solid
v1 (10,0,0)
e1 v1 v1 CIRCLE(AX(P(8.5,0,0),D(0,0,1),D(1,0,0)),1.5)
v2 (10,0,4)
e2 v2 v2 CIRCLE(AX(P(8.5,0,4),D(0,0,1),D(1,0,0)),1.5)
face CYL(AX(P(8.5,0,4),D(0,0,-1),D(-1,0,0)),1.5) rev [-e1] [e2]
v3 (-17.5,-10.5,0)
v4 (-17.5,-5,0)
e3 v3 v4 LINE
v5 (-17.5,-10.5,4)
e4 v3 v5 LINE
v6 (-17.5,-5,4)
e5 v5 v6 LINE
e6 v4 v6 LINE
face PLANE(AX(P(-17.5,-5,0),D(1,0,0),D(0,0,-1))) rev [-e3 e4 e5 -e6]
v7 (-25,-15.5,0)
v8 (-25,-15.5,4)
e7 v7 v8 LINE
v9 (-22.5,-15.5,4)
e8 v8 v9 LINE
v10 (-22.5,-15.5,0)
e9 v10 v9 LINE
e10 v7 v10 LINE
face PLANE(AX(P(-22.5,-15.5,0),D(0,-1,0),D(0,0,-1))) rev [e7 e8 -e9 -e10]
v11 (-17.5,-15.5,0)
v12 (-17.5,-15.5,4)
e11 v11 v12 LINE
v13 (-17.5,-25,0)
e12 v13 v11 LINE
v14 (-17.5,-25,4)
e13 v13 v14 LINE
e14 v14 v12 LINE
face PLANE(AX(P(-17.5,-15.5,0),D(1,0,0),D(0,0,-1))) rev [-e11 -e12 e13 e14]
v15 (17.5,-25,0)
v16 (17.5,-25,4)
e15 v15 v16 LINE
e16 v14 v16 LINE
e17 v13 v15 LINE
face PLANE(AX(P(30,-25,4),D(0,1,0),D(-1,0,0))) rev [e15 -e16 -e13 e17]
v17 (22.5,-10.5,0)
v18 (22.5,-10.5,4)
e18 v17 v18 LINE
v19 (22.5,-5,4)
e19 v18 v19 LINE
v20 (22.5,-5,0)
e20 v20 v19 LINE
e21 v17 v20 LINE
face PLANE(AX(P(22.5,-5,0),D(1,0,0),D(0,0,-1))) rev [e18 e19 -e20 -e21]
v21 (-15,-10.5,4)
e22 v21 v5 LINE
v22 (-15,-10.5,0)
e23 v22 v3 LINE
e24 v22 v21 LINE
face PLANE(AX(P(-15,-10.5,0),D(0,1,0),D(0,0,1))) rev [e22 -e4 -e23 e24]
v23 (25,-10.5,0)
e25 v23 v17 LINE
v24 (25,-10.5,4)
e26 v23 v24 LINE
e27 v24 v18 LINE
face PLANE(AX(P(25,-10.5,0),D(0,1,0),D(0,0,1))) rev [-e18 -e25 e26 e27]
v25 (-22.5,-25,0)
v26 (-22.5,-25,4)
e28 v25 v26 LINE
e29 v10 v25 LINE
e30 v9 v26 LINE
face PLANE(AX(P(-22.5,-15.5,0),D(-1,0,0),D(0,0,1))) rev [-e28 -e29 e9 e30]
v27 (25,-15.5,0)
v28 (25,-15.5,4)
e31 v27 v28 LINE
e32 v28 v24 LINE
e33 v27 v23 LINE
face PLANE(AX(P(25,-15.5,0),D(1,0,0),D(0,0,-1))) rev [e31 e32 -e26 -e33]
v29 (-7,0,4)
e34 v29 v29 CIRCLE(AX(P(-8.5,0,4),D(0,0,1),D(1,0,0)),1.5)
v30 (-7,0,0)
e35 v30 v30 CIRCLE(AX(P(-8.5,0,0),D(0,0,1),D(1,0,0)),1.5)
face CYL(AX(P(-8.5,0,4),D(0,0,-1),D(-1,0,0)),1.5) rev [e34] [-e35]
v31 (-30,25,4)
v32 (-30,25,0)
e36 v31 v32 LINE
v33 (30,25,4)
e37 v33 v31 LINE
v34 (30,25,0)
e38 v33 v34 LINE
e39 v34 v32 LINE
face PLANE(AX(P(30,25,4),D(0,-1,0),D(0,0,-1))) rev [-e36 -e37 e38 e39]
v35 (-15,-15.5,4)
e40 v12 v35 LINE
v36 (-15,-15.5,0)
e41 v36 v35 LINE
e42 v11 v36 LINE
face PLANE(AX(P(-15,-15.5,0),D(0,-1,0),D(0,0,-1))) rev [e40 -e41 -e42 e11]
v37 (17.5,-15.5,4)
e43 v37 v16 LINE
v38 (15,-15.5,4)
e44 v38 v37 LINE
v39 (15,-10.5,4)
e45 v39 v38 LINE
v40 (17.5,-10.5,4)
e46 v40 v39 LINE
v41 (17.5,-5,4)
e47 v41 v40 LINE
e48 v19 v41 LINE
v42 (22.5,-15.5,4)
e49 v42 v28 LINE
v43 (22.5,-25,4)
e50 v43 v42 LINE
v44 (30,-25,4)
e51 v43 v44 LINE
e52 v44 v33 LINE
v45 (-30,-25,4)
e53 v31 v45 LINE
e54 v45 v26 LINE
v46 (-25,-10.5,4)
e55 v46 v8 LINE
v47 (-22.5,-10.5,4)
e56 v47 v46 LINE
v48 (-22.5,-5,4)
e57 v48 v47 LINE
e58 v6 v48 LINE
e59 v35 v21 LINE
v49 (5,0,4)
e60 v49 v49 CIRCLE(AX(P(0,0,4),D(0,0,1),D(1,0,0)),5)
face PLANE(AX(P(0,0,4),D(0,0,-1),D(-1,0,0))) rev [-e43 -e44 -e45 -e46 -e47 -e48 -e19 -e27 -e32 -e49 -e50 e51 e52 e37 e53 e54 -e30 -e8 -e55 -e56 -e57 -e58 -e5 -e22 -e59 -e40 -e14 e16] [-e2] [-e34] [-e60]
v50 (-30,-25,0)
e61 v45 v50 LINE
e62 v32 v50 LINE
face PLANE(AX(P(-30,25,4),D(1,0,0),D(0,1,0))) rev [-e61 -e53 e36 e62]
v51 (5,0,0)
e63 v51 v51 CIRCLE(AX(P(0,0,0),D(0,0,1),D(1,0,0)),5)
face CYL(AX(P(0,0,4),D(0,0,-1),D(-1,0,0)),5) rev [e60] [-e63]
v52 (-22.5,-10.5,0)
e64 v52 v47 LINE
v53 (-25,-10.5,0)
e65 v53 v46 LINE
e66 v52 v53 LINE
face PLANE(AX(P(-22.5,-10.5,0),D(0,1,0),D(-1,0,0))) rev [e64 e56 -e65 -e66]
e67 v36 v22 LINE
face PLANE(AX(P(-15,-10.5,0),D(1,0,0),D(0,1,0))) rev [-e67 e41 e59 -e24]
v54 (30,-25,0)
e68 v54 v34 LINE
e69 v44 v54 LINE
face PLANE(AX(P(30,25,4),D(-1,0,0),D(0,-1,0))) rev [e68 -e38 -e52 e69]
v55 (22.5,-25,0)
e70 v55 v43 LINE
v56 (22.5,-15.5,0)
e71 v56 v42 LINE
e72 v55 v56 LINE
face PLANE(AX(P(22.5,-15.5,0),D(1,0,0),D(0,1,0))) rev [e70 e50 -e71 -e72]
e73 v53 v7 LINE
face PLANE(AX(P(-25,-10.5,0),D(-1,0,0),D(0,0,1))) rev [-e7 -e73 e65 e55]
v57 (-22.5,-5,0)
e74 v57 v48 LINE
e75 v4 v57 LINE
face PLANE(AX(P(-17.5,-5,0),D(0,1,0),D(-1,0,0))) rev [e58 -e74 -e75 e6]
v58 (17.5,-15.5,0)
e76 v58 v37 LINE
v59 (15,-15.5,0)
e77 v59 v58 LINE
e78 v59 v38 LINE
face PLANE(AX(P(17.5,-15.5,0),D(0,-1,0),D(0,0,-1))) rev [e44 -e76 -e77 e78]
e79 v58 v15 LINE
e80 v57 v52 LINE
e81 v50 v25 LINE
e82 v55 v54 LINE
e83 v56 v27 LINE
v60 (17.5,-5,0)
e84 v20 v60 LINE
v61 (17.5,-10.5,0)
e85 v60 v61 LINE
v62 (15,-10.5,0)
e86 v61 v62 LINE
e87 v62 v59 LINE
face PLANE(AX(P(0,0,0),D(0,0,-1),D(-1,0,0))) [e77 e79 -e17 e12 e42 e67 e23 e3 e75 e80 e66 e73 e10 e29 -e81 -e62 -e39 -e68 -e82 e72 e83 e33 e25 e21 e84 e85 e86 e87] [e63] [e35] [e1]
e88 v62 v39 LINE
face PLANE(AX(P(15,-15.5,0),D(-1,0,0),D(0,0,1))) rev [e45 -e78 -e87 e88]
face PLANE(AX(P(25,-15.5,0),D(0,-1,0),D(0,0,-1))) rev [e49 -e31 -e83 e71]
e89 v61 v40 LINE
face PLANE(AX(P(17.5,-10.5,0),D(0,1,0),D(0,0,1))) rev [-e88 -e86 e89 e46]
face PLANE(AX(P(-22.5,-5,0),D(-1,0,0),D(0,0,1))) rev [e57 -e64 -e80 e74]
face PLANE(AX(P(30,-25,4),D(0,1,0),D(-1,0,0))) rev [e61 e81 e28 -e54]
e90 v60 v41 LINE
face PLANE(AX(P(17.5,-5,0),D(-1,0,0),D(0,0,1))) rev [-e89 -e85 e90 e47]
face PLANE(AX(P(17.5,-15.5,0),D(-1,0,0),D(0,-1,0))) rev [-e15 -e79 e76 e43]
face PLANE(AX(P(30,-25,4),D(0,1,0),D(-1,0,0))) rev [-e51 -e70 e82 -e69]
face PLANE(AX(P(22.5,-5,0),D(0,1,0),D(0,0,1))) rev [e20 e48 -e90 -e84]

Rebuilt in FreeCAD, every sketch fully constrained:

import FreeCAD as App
import Part
import Sketcher
from FreeCAD import Vector
Q = App.Units.Quantity


def add_polygon(sketch, points):
    """Adds a closed chain of lines whose ends are joined by coincident constraints."""
    first, n = sketch.GeometryCount, len(points)
    for a, b in zip(points, points[1:] + points[:1]):
        sketch.addGeometry(Part.LineSegment(App.Vector(*a, 0), App.Vector(*b, 0)), False)
    for i in range(n):
        sketch.addConstraint(Sketcher.Constraint("Coincident", first + i, 2, first + (i + 1) % n, 1))

doc = App.newDocument("Part")
params = doc.addObject("Spreadsheet::Sheet", "Params")
for row, (alias, value) in enumerate([
    ("sketch1_diameter", "3 mm"),
    ("sketch1_diameter2", "10 mm"),
    ("sketch1_width", "60 mm"),
    ("sketch1_height", "50 mm"),
    ("pad1_length", "4 mm"),
    ("sketch2_width", "5 mm"),
    ("sketch2_width2", "2.5 mm"),
    ("sketch2_height", "5.5 mm"),
    ("sketch2_height2", "9.5 mm"),
], start=1):
    params.set(f"A{row}", alias)
    params.set(f"B{row}", "=" + value)
    params.setAlias(f"B{row}", alias)

body = doc.addObject("PartDesign::Body", "Body")

# Sketch on XY plane
sketch1 = body.newObject("Sketcher::SketchObject", "Sketch")
sketch1.AttachmentSupport = (doc.getObject("XY_Plane"), [""])
sketch1.MapMode = "FlatFace"
add_polygon(sketch1, [(-30, 25), (-30, -25), (30, -25), (30, 25)])  # lines 0-3
sketch1.addGeometry(Part.Circle(Vector(-8.5, 0, 0), Vector(0, 0, 1), 1.5), False)  # 4
sketch1.addGeometry(Part.Circle(Vector(0, 0, 0), Vector(0, 0, 1), 5), False)  # 5
sketch1.addGeometry(Part.Circle(Vector(8.5, 0, 0), Vector(0, 0, 1), 1.5), False)  # 6
sketch1.addConstraint([
    Sketcher.Constraint("Vertical", 0),
    Sketcher.Constraint("Horizontal", 1),
    Sketcher.Constraint("Vertical", 2),
    Sketcher.Constraint("Horizontal", 3),
    Sketcher.Constraint("Coincident", 5, 3, -1, 1),
    Sketcher.Constraint("Equal", 4, 6),
    Sketcher.Constraint("Symmetric", 4, 3, 6, 3, -1, 1),
    Sketcher.Constraint("Symmetric", 0, 2, 2, 2, -1, 1),
    Sketcher.Constraint("PointOnObject", 4, 3, -1),
    Sketcher.Constraint("Diameter", 4, Q("3 mm")),
    Sketcher.Constraint("Diameter", 5, Q("10 mm")),
    Sketcher.Constraint("DistanceX", 1, 1, 1, 2, Q("60 mm")),
    Sketcher.Constraint("DistanceY", 0, 2, 0, 1, Q("50 mm")),
    Sketcher.Constraint("DistanceX", 4, 3, 6, 3, Q("17 mm")),
])
sketch1.setExpression("Constraints[13]", "Params.sketch1_diameter")
sketch1.setExpression("Constraints[14]", "Params.sketch1_diameter2")
sketch1.setExpression("Constraints[15]", "Params.sketch1_width")
sketch1.setExpression("Constraints[16]", "Params.sketch1_height")
pad1 = body.newObject("PartDesign::Pad", "Pad")
pad1.Profile = sketch1
pad1.setExpression("Length", "Params.pad1_length")

# Sketch on XY plane
sketch2 = body.newObject("Sketcher::SketchObject", "Sketch001")
sketch2.AttachmentSupport = (doc.getObject("XY_Plane"), [""])
sketch2.MapMode = "FlatFace"
sketch2.AttachmentOffset = App.Placement(Vector(0, 0, 4), App.Rotation())
add_polygon(sketch2, [(-17.5, -5), (-22.5, -5), (-22.5, -10.5), (-25, -10.5), (-25, -15.5), (-22.5, -15.5), (-22.5, -25), (-17.5, -25), (-17.5, -15.5), (-15, -15.5), (-15, -10.5), (-17.5, -10.5)])  # lines 0-11
add_polygon(sketch2, [(22.5, -5), (17.5, -5), (17.5, -10.5), (15, -10.5), (15, -15.5), (17.5, -15.5), (17.5, -25), (22.5, -25), (22.5, -15.5), (25, -15.5), (25, -10.5), (22.5, -10.5)])  # lines 12-23
sketch2.addConstraint([
    Sketcher.Constraint("Horizontal", 0),
    Sketcher.Constraint("Vertical", 1),
    Sketcher.Constraint("Horizontal", 2),
    Sketcher.Constraint("Vertical", 3),
    Sketcher.Constraint("Horizontal", 4),
    Sketcher.Constraint("Vertical", 5),
    Sketcher.Constraint("Horizontal", 6),
    Sketcher.Constraint("Vertical", 7),
    Sketcher.Constraint("Horizontal", 8),
    Sketcher.Constraint("Vertical", 9),
    Sketcher.Constraint("Horizontal", 10),
    Sketcher.Constraint("Vertical", 11),
    Sketcher.Constraint("Horizontal", 12),
    Sketcher.Constraint("Vertical", 13),
    Sketcher.Constraint("Horizontal", 14),
    Sketcher.Constraint("Vertical", 15),
    Sketcher.Constraint("Horizontal", 16),
    Sketcher.Constraint("Vertical", 17),
    Sketcher.Constraint("Horizontal", 18),
    Sketcher.Constraint("Vertical", 19),
    Sketcher.Constraint("Horizontal", 20),
    Sketcher.Constraint("Vertical", 21),
    Sketcher.Constraint("Horizontal", 22),
    Sketcher.Constraint("Vertical", 23),
    Sketcher.Constraint("Symmetric", 11, 2, 12, 2, -2),
    Sketcher.Constraint("Symmetric", 9, 2, 14, 2, -2),
    Sketcher.Constraint("Symmetric", 7, 2, 16, 2, -2),
    Sketcher.Constraint("Symmetric", 5, 2, 18, 2, -2),
    Sketcher.Constraint("Symmetric", 3, 2, 20, 2, -2),
    Sketcher.Constraint("Symmetric", 1, 2, 22, 2, -2),
    Sketcher.Constraint("Horizontal", 4, 2, 7, 2),
    Sketcher.Constraint("Horizontal", 2, 2, 9, 2),
    Sketcher.Constraint("Vertical", 1, 2, 4, 2),
    Sketcher.Constraint("Vertical", 7, 2, 10, 2),
    Sketcher.Constraint("Equal", 4, 8),
    Sketcher.Constraint("Equal", 18, 3),
    Sketcher.Constraint("DistanceX", 0, 2, 0, 1, Q("5 mm")),
    Sketcher.Constraint("DistanceX", 2, 2, 2, 1, Q("2.5 mm")),
    Sketcher.Constraint("DistanceY", 1, 2, 1, 1, Q("5.5 mm")),
    Sketcher.Constraint("DistanceY", 5, 2, 5, 1, Q("9.5 mm")),
    Sketcher.Constraint("DistanceY", 0, 2, -1, 1, Q("5 mm")),
    Sketcher.Constraint("DistanceX", 2, 2, -1, 1, Q("25 mm")),
])
sketch2.setExpression("Constraints[60]", "Params.sketch2_width")
sketch2.setExpression("Constraints[61]", "Params.sketch2_width2")
sketch2.setExpression("Constraints[62]", "Params.sketch2_height")
sketch2.setExpression("Constraints[63]", "Params.sketch2_height2")
pocket1 = body.newObject("PartDesign::Pocket", "Pocket")
pocket1.Profile = sketch2
pocket1.Type = "ThroughAll"

doc.recompute()
